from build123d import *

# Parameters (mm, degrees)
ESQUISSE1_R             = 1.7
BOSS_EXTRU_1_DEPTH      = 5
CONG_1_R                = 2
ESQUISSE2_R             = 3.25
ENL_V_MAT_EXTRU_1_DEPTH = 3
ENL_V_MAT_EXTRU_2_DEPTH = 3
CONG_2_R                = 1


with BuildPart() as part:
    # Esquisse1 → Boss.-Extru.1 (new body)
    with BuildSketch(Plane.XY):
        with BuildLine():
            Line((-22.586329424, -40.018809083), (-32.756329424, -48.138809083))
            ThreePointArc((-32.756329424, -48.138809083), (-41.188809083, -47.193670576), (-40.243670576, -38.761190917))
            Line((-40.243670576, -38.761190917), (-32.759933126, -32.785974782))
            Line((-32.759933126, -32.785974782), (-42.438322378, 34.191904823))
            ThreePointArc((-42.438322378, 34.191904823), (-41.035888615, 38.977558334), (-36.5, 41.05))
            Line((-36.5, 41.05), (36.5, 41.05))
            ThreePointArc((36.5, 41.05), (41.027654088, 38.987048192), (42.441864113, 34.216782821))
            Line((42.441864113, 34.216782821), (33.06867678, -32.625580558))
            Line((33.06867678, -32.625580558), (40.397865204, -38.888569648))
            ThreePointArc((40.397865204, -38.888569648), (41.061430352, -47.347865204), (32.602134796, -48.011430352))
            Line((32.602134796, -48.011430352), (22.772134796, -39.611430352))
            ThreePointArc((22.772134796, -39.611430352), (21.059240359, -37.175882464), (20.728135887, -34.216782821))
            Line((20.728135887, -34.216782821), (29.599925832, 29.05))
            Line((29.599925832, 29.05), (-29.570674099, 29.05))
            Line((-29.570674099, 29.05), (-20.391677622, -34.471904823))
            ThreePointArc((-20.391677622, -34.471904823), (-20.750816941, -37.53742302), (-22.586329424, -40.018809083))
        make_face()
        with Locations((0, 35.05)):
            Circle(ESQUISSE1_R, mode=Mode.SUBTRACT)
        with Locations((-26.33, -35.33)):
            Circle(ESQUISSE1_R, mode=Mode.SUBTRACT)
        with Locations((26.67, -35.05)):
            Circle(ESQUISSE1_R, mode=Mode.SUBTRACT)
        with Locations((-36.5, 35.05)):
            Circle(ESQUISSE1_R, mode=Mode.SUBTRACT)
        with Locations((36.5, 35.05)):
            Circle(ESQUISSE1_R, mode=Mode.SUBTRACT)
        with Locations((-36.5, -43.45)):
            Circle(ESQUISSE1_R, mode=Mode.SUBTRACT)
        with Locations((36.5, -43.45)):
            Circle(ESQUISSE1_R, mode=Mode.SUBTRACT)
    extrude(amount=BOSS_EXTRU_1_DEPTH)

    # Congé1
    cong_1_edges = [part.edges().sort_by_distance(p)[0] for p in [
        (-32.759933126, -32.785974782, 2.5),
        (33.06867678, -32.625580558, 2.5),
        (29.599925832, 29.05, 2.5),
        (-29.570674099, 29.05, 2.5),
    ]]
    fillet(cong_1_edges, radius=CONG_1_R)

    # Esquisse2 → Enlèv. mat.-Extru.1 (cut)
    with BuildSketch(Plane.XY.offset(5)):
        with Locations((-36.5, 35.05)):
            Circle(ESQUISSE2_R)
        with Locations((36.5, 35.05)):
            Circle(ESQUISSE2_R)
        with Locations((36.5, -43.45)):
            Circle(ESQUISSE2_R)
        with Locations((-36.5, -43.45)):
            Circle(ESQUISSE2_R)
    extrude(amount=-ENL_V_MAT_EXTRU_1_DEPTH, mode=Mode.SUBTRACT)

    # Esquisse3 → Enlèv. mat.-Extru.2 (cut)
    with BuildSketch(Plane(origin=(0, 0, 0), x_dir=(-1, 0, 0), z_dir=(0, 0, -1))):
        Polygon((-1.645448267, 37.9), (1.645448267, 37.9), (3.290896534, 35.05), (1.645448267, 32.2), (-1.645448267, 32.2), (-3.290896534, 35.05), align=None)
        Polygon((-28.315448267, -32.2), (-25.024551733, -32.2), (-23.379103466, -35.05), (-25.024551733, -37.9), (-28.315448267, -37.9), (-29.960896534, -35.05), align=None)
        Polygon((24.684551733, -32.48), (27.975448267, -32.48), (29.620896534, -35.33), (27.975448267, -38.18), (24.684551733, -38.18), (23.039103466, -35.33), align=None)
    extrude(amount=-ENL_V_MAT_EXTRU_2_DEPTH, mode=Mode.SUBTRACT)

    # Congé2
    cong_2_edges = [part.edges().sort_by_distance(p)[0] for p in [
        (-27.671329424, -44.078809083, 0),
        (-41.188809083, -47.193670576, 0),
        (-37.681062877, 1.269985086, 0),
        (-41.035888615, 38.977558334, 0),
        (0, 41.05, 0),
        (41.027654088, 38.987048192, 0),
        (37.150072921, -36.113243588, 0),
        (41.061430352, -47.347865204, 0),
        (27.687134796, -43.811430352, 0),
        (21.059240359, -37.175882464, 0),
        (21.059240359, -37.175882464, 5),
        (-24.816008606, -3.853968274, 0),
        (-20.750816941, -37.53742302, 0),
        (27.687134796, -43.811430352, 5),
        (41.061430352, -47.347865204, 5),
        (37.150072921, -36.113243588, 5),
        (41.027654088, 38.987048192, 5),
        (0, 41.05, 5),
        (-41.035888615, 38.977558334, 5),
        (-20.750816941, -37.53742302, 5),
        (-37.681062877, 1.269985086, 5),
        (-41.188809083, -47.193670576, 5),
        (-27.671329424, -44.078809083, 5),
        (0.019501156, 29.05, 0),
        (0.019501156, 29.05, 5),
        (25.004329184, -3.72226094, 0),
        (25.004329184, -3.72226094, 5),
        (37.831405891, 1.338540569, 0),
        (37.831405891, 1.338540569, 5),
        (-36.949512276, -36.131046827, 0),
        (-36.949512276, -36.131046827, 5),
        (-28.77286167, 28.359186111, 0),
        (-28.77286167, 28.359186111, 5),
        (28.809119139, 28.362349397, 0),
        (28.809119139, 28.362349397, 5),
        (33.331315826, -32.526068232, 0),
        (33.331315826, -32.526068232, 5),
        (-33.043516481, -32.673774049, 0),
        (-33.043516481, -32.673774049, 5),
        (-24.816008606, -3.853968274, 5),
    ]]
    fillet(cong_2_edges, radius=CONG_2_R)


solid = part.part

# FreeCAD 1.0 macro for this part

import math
import FreeCAD as App
import Part
import Sketcher
Q = App.Units.Quantity


def edges_at(feature, points):
    """Names of the edges that pass closest to the given points."""
    edges = feature.Shape.Edges
    near = lambda p: min(range(len(edges)), key=lambda i: edges[i].distToShape(Part.Vertex(*p))[0])
    return sorted({f"Edge{near(p) + 1}" for p in points})

doc = App.newDocument("Part")
body = doc.addObject("PartDesign::Body", "Body")

# Sketch on XY plane
sketch1 = body.newObject("Sketcher::SketchObject", "Sketch")
sketch1.AttachmentSupport = (doc.getObject("XY_Plane"), [""])
sketch1.MapMode = "FlatFace"
sketch1.addGeometry(Part.LineSegment(App.Vector(-32.756329, -48.138809, 0), App.Vector(-22.586329, -40.018809, 0)), False)
sketch1.addGeometry(Part.ArcOfCircle(Part.Circle(App.Vector(-26.33, -35.33, 0), App.Vector(0, 0, 1), 6), math.radians(-51.395198), math.radians(8.222399)), False)
sketch1.addGeometry(Part.LineSegment(App.Vector(-20.391678, -34.471905, 0), App.Vector(-29.570674, 29.05, 0)), False)
sketch1.addGeometry(Part.LineSegment(App.Vector(-29.570674, 29.05, 0), App.Vector(29.599926, 29.05, 0)), False)
sketch1.addGeometry(Part.LineSegment(App.Vector(29.599926, 29.05, 0), App.Vector(20.728136, -34.216783, 0)), False)
sketch1.addGeometry(Part.ArcOfCircle(Part.Circle(App.Vector(26.67, -35.05, 0), App.Vector(0, 0, 1), 6), math.radians(172.017564), math.radians(229.485218)), False)
sketch1.addGeometry(Part.LineSegment(App.Vector(22.772135, -39.61143, 0), App.Vector(32.602135, -48.01143, 0)), False)
sketch1.addGeometry(Part.ArcOfCircle(Part.Circle(App.Vector(36.5, -43.45, 0), App.Vector(0, 0, 1), 6), math.radians(-130.514781), math.radians(49.485219)), False)
sketch1.addGeometry(Part.LineSegment(App.Vector(40.397865, -38.88857, 0), App.Vector(33.068677, -32.625581, 0)), False)
sketch1.addGeometry(Part.LineSegment(App.Vector(33.068677, -32.625581, 0), App.Vector(42.441864, 34.216783, 0)), False)
sketch1.addGeometry(Part.ArcOfCircle(Part.Circle(App.Vector(36.5, 35.05, 0), App.Vector(0, 0, 1), 6), math.radians(-7.982436), math.radians(90)), False)
sketch1.addGeometry(Part.LineSegment(App.Vector(36.5, 41.05, 0), App.Vector(-36.5, 41.05, 0)), False)
sketch1.addGeometry(Part.ArcOfCircle(Part.Circle(App.Vector(-36.5, 35.05, 0), App.Vector(0, 0, 1), 6), math.radians(90), math.radians(188.222399)), False)
sketch1.addGeometry(Part.LineSegment(App.Vector(-42.438322, 34.191905, 0), App.Vector(-32.759933, -32.785975, 0)), False)
sketch1.addGeometry(Part.LineSegment(App.Vector(-32.759933, -32.785975, 0), App.Vector(-40.243671, -38.761191, 0)), False)
sketch1.addGeometry(Part.ArcOfCircle(Part.Circle(App.Vector(-36.5, -43.45, 0), App.Vector(0, 0, 1), 6), math.radians(128.604802), math.radians(308.604802)), False)
sketch1.addGeometry(Part.Circle(App.Vector(36.5, -43.45, 0), App.Vector(0, 0, 1), 1.7), False)
sketch1.addGeometry(Part.Circle(App.Vector(26.67, -35.05, 0), App.Vector(0, 0, 1), 1.7), False)
sketch1.addGeometry(Part.Circle(App.Vector(-26.33, -35.33, 0), App.Vector(0, 0, 1), 1.7), False)
sketch1.addGeometry(Part.Circle(App.Vector(-36.5, -43.45, 0), App.Vector(0, 0, 1), 1.7), False)
sketch1.addGeometry(Part.Circle(App.Vector(36.5, 35.05, 0), App.Vector(0, 0, 1), 1.7), False)
sketch1.addGeometry(Part.Circle(App.Vector(0, 35.05, 0), App.Vector(0, 0, 1), 1.7), False)
sketch1.addGeometry(Part.Circle(App.Vector(-36.5, 35.05, 0), App.Vector(0, 0, 1), 1.7), False)
sketch1.addConstraint(Sketcher.Constraint("Tangent", 0, 2, 1, 1))
sketch1.addConstraint(Sketcher.Constraint("Tangent", 1, 2, 2, 1))
sketch1.addConstraint(Sketcher.Constraint("Coincident", 2, 2, 3, 1))
sketch1.addConstraint(Sketcher.Constraint("Coincident", 3, 2, 4, 1))
sketch1.addConstraint(Sketcher.Constraint("Tangent", 4, 2, 5, 1))
sketch1.addConstraint(Sketcher.Constraint("Tangent", 5, 2, 6, 1))
sketch1.addConstraint(Sketcher.Constraint("Tangent", 6, 2, 7, 1))
sketch1.addConstraint(Sketcher.Constraint("Tangent", 7, 2, 8, 1))
sketch1.addConstraint(Sketcher.Constraint("Coincident", 8, 2, 9, 1))
sketch1.addConstraint(Sketcher.Constraint("Tangent", 9, 2, 10, 1))
sketch1.addConstraint(Sketcher.Constraint("Tangent", 10, 2, 11, 1))
sketch1.addConstraint(Sketcher.Constraint("Tangent", 11, 2, 12, 1))
sketch1.addConstraint(Sketcher.Constraint("Tangent", 12, 2, 13, 1))
sketch1.addConstraint(Sketcher.Constraint("Coincident", 13, 2, 14, 1))
sketch1.addConstraint(Sketcher.Constraint("Tangent", 14, 2, 15, 1))
sketch1.addConstraint(Sketcher.Constraint("Tangent", 15, 2, 0, 1))
sketch1.addConstraint(Sketcher.Constraint("Horizontal", 3))
sketch1.addConstraint(Sketcher.Constraint("Horizontal", 11))
sketch1.addConstraint(Sketcher.Constraint("Coincident", 16, 3, 7, 3))
sketch1.addConstraint(Sketcher.Constraint("Coincident", 17, 3, 5, 3))
sketch1.addConstraint(Sketcher.Constraint("Coincident", 18, 3, 1, 3))
sketch1.addConstraint(Sketcher.Constraint("Coincident", 19, 3, 15, 3))
sketch1.addConstraint(Sketcher.Constraint("Coincident", 20, 3, 10, 3))
sketch1.addConstraint(Sketcher.Constraint("Coincident", 22, 3, 12, 3))
sketch1.addConstraint(Sketcher.Constraint("Equal", 1, 5))
sketch1.addConstraint(Sketcher.Constraint("Equal", 5, 7))
sketch1.addConstraint(Sketcher.Constraint("Equal", 7, 10))
sketch1.addConstraint(Sketcher.Constraint("Equal", 10, 12))
sketch1.addConstraint(Sketcher.Constraint("Equal", 12, 15))
sketch1.addConstraint(Sketcher.Constraint("Equal", 16, 17))
sketch1.addConstraint(Sketcher.Constraint("Equal", 17, 18))
sketch1.addConstraint(Sketcher.Constraint("Equal", 18, 19))
sketch1.addConstraint(Sketcher.Constraint("Equal", 19, 20))
sketch1.addConstraint(Sketcher.Constraint("Equal", 20, 21))
sketch1.addConstraint(Sketcher.Constraint("Equal", 21, 22))
sketch1.addConstraint(Sketcher.Constraint("Symmetric", 7, 3, 15, 3, -2))
sketch1.addConstraint(Sketcher.Constraint("PointOnObject", 21, 3, -2))
sketch1.addConstraint(Sketcher.Constraint("Parallel", 6, 8))
sketch1.addConstraint(Sketcher.Constraint("Parallel", 4, 9))
sketch1.addConstraint(Sketcher.Constraint("Parallel", 2, 13))
sketch1.addConstraint(Sketcher.Constraint("Parallel", 0, 14))
sketch1.addConstraint(Sketcher.Constraint("Horizontal", 20, 3, 21, 3))
sketch1.addConstraint(Sketcher.Constraint("Vertical", 7, 3, 10, 3))
sketch1.addConstraint(Sketcher.Constraint("Vertical", 12, 3, 15, 3))
sketch1.addConstraint(Sketcher.Constraint("Radius", 1, Q("6 mm")))
sketch1.addConstraint(Sketcher.Constraint("Diameter", 16, Q("3.4 mm")))
sketch1.addConstraint(Sketcher.Constraint("DistanceX", 11, 2, 11, 1, Q("73 mm")))
sketch1.addConstraint(Sketcher.Constraint("DistanceX", 1, 3, 5, 3, Q("53 mm")))
sketch1.addConstraint(Sketcher.Constraint("DistanceY", 2, 2, 12, 3, Q("6 mm")))
sketch1.addConstraint(Sketcher.Constraint("DistanceY", 7, 3, 5, 3, Q("8.4 mm")))
sketch1.addConstraint(Sketcher.Constraint("DistanceY", 5, 3, 10, 3, Q("70.1 mm")))
sketch1.addConstraint(Sketcher.Constraint("DistanceX", 1, 3, -1, 1, Q("26.33 mm")))
sketch1.addConstraint(Sketcher.Constraint("DistanceY", 1, 3, -1, 1, Q("35.33 mm")))
sketch1.addConstraint(Sketcher.Constraint("DistanceY", 5, 3, -1, 1, Q("35.05 mm")))
sketch1.addConstraint(Sketcher.Constraint("DistanceX", 3, 1, 3, 2, Q("59.1706 mm")))
sketch1.addConstraint(Sketcher.Constraint("Distance", 14, Q("9.576509 mm")))
pad1 = body.newObject("PartDesign::Pad", "Pad")
pad1.Profile = sketch1
pad1.Length = 5
doc.recompute()

fillet = body.newObject("PartDesign::Fillet", "Fillet")
fillet.Base = (pad1, edges_at(pad1, [
    (-32.76, -32.786, 2.5),
    (33.069, -32.626, 2.5),
    (29.6, 29.05, 2.5),
    (-29.571, 29.05, 2.5),
]))
fillet.Radius = 2

# Sketch on XY plane
sketch2 = body.newObject("Sketcher::SketchObject", "Sketch001")
sketch2.AttachmentSupport = (doc.getObject("XY_Plane"), [""])
sketch2.MapMode = "FlatFace"
sketch2.AttachmentOffset = App.Placement(App.Vector(0, 0, 5), App.Rotation())
sketch2.addGeometry(Part.Circle(App.Vector(-36.5, 35.05, 0), App.Vector(0, 0, 1), 3.25), False)
sketch2.addGeometry(Part.Circle(App.Vector(36.5, 35.05, 0), App.Vector(0, 0, 1), 3.25), False)
sketch2.addGeometry(Part.Circle(App.Vector(36.5, -43.45, 0), App.Vector(0, 0, 1), 3.25), False)
sketch2.addGeometry(Part.Circle(App.Vector(-36.5, -43.45, 0), App.Vector(0, 0, 1), 3.25), False)
sketch2.addConstraint(Sketcher.Constraint("Equal", 0, 1))
sketch2.addConstraint(Sketcher.Constraint("Equal", 1, 2))
sketch2.addConstraint(Sketcher.Constraint("Equal", 2, 3))
sketch2.addConstraint(Sketcher.Constraint("Symmetric", 0, 3, 1, 3, -2))
sketch2.addConstraint(Sketcher.Constraint("Symmetric", 2, 3, 3, 3, -2))
sketch2.addConstraint(Sketcher.Constraint("Vertical", 1, 3, 2, 3))
sketch2.addConstraint(Sketcher.Constraint("Diameter", 0, Q("6.5 mm")))
sketch2.addConstraint(Sketcher.Constraint("DistanceX", 0, 3, 1, 3, Q("73 mm")))
sketch2.addConstraint(Sketcher.Constraint("DistanceY", 2, 3, 1, 3, Q("78.5 mm")))
sketch2.addConstraint(Sketcher.Constraint("DistanceY", -1, 1, 0, 3, Q("35.05 mm")))
pocket1 = body.newObject("PartDesign::Pocket", "Pocket")
pocket1.Profile = sketch2
pocket1.Length = 3

# Sketch on XY plane
sketch3 = body.newObject("Sketcher::SketchObject", "Sketch002")
sketch3.AttachmentSupport = (doc.getObject("XY_Plane"), [""])
sketch3.MapMode = "FlatFace"
sketch3.addGeometry(Part.LineSegment(App.Vector(-1.645448, 37.9, 0), App.Vector(1.645448, 37.9, 0)), False)
sketch3.addGeometry(Part.LineSegment(App.Vector(1.645448, 37.9, 0), App.Vector(3.290897, 35.05, 0)), False)
sketch3.addGeometry(Part.LineSegment(App.Vector(3.290897, 35.05, 0), App.Vector(1.645448, 32.2, 0)), False)
sketch3.addGeometry(Part.LineSegment(App.Vector(1.645448, 32.2, 0), App.Vector(-1.645448, 32.2, 0)), False)
sketch3.addGeometry(Part.LineSegment(App.Vector(-1.645448, 32.2, 0), App.Vector(-3.290897, 35.05, 0)), False)
sketch3.addGeometry(Part.LineSegment(App.Vector(-3.290897, 35.05, 0), App.Vector(-1.645448, 37.9, 0)), False)
sketch3.addGeometry(Part.LineSegment(App.Vector(25.024552, -32.2, 0), App.Vector(28.315448, -32.2, 0)), False)
sketch3.addGeometry(Part.LineSegment(App.Vector(28.315448, -32.2, 0), App.Vector(29.960897, -35.05, 0)), False)
sketch3.addGeometry(Part.LineSegment(App.Vector(29.960897, -35.05, 0), App.Vector(28.315448, -37.9, 0)), False)
sketch3.addGeometry(Part.LineSegment(App.Vector(28.315448, -37.9, 0), App.Vector(25.024552, -37.9, 0)), False)
sketch3.addGeometry(Part.LineSegment(App.Vector(25.024552, -37.9, 0), App.Vector(23.379103, -35.05, 0)), False)
sketch3.addGeometry(Part.LineSegment(App.Vector(23.379103, -35.05, 0), App.Vector(25.024552, -32.2, 0)), False)
sketch3.addGeometry(Part.LineSegment(App.Vector(-27.975448, -32.48, 0), App.Vector(-24.684552, -32.48, 0)), False)
sketch3.addGeometry(Part.LineSegment(App.Vector(-24.684552, -32.48, 0), App.Vector(-23.039103, -35.33, 0)), False)
sketch3.addGeometry(Part.LineSegment(App.Vector(-23.039103, -35.33, 0), App.Vector(-24.684552, -38.18, 0)), False)
sketch3.addGeometry(Part.LineSegment(App.Vector(-24.684552, -38.18, 0), App.Vector(-27.975448, -38.18, 0)), False)
sketch3.addGeometry(Part.LineSegment(App.Vector(-27.975448, -38.18, 0), App.Vector(-29.620897, -35.33, 0)), False)
sketch3.addGeometry(Part.LineSegment(App.Vector(-29.620897, -35.33, 0), App.Vector(-27.975448, -32.48, 0)), False)
sketch3.addConstraint(Sketcher.Constraint("Coincident", 0, 2, 1, 1))
sketch3.addConstraint(Sketcher.Constraint("Coincident", 1, 2, 2, 1))
sketch3.addConstraint(Sketcher.Constraint("Coincident", 2, 2, 3, 1))
sketch3.addConstraint(Sketcher.Constraint("Coincident", 3, 2, 4, 1))
sketch3.addConstraint(Sketcher.Constraint("Coincident", 4, 2, 5, 1))
sketch3.addConstraint(Sketcher.Constraint("Coincident", 5, 2, 0, 1))
sketch3.addConstraint(Sketcher.Constraint("Coincident", 6, 2, 7, 1))
sketch3.addConstraint(Sketcher.Constraint("Coincident", 7, 2, 8, 1))
sketch3.addConstraint(Sketcher.Constraint("Coincident", 8, 2, 9, 1))
sketch3.addConstraint(Sketcher.Constraint("Coincident", 9, 2, 10, 1))
sketch3.addConstraint(Sketcher.Constraint("Coincident", 10, 2, 11, 1))
sketch3.addConstraint(Sketcher.Constraint("Coincident", 11, 2, 6, 1))
sketch3.addConstraint(Sketcher.Constraint("Coincident", 12, 2, 13, 1))
sketch3.addConstraint(Sketcher.Constraint("Coincident", 13, 2, 14, 1))
sketch3.addConstraint(Sketcher.Constraint("Coincident", 14, 2, 15, 1))
sketch3.addConstraint(Sketcher.Constraint("Coincident", 15, 2, 16, 1))
sketch3.addConstraint(Sketcher.Constraint("Coincident", 16, 2, 17, 1))
sketch3.addConstraint(Sketcher.Constraint("Coincident", 17, 2, 12, 1))
sketch3.addConstraint(Sketcher.Constraint("Horizontal", 0))
sketch3.addConstraint(Sketcher.Constraint("Horizontal", 3))
sketch3.addConstraint(Sketcher.Constraint("Horizontal", 6))
sketch3.addConstraint(Sketcher.Constraint("Horizontal", 9))
sketch3.addConstraint(Sketcher.Constraint("Horizontal", 12))
sketch3.addConstraint(Sketcher.Constraint("Horizontal", 15))
sketch3.addConstraint(Sketcher.Constraint("Symmetric", 1, 2, 4, 2, -2))
sketch3.addConstraint(Sketcher.Constraint("Parallel", 1, 4))
sketch3.addConstraint(Sketcher.Constraint("Parallel", 2, 5))
sketch3.addConstraint(Sketcher.Constraint("Parallel", 4, 7))
sketch3.addConstraint(Sketcher.Constraint("Parallel", 5, 8))
sketch3.addConstraint(Sketcher.Constraint("Parallel", 7, 10))
sketch3.addConstraint(Sketcher.Constraint("Parallel", 8, 11))
sketch3.addConstraint(Sketcher.Constraint("Parallel", 10, 13))
sketch3.addConstraint(Sketcher.Constraint("Parallel", 11, 14))
sketch3.addConstraint(Sketcher.Constraint("Parallel", 13, 16))
sketch3.addConstraint(Sketcher.Constraint("Parallel", 14, 17))
sketch3.addConstraint(Sketcher.Constraint("Horizontal", 7, 2, 10, 2))
sketch3.addConstraint(Sketcher.Constraint("Horizontal", 13, 2, 16, 2))
sketch3.addConstraint(Sketcher.Constraint("Vertical", 0, 2, 2, 2))
sketch3.addConstraint(Sketcher.Constraint("Vertical", 3, 2, 5, 2))
sketch3.addConstraint(Sketcher.Constraint("Vertical", 6, 2, 8, 2))
sketch3.addConstraint(Sketcher.Constraint("Vertical", 12, 2, 14, 2))
sketch3.addConstraint(Sketcher.Constraint("Equal", 3, 6))
sketch3.addConstraint(Sketcher.Constraint("Equal", 9, 12))
sketch3.addConstraint(Sketcher.Constraint("Equal", 5, 7))
sketch3.addConstraint(Sketcher.Constraint("Equal", 11, 13))
sketch3.addConstraint(Sketcher.Constraint("Angle", 1, Q("-60 deg")))
sketch3.addConstraint(Sketcher.Constraint("DistanceX", 12, 2, 6, 2, Q("53 mm")))
sketch3.addConstraint(Sketcher.Constraint("DistanceY", -1, 1, 0, 2, Q("37.9 mm")))
sketch3.addConstraint(Sketcher.Constraint("DistanceY", -1, 1, 2, 2, Q("32.2 mm")))
sketch3.addConstraint(Sketcher.Constraint("DistanceY", 6, 2, -1, 1, Q("32.2 mm")))
sketch3.addConstraint(Sketcher.Constraint("DistanceY", 12, 2, -1, 1, Q("32.48 mm")))
sketch3.addConstraint(Sketcher.Constraint("DistanceX", 2, 2, 6, 2, Q("26.67 mm")))
sketch3.addConstraint(Sketcher.Constraint("DistanceX", 0, 1, 0, 2, Q("3.290897 mm")))
pocket2 = body.newObject("PartDesign::Pocket", "Pocket001")
pocket2.Profile = sketch3
pocket2.Length = 3
pocket2.Reversed = True
doc.recompute()

fillet2 = body.newObject("PartDesign::Fillet", "Fillet001")
fillet2.Base = (pocket2, edges_at(pocket2, [
    (-27.671, -44.079, 0),
    (-41.189, -47.194, 0),
    (-37.681, 1.27, 0),
    (-41.036, 38.978, 0),
    (0, 41.05, 0),
    (41.028, 38.987, 0),
    (37.15, -36.113, 0),
    (41.061, -47.348, 0),
    (27.687, -43.811, 0),
    (21.059, -37.176, 0),
    (21.059, -37.176, 5),
    (-24.816, -3.854, 0),
    (-20.751, -37.537, 0),
    (27.687, -43.811, 5),
    (41.061, -47.348, 5),
    (37.15, -36.113, 5),
    (41.028, 38.987, 5),
    (0, 41.05, 5),
    (-41.036, 38.978, 5),
    (-20.751, -37.537, 5),
    (-37.681, 1.27, 5),
    (-41.189, -47.194, 5),
    (-27.671, -44.079, 5),
    (0.02, 29.05, 0),
    (0.02, 29.05, 5),
    (25.004, -3.722, 0),
    (25.004, -3.722, 5),
    (37.831, 1.339, 0),
    (37.831, 1.339, 5),
    (-36.95, -36.131, 0),
    (-36.95, -36.131, 5),
    (-28.773, 28.359, 0),
    (-28.773, 28.359, 5),
    (28.809, 28.362, 0),
    (28.809, 28.362, 5),
    (33.331, -32.526, 0),
    (33.331, -32.526, 5),
    (-33.044, -32.674, 0),
    (-33.044, -32.674, 5),
    (-24.816, -3.854, 5),
]))
fillet2.Radius = 1

doc.recompute()
